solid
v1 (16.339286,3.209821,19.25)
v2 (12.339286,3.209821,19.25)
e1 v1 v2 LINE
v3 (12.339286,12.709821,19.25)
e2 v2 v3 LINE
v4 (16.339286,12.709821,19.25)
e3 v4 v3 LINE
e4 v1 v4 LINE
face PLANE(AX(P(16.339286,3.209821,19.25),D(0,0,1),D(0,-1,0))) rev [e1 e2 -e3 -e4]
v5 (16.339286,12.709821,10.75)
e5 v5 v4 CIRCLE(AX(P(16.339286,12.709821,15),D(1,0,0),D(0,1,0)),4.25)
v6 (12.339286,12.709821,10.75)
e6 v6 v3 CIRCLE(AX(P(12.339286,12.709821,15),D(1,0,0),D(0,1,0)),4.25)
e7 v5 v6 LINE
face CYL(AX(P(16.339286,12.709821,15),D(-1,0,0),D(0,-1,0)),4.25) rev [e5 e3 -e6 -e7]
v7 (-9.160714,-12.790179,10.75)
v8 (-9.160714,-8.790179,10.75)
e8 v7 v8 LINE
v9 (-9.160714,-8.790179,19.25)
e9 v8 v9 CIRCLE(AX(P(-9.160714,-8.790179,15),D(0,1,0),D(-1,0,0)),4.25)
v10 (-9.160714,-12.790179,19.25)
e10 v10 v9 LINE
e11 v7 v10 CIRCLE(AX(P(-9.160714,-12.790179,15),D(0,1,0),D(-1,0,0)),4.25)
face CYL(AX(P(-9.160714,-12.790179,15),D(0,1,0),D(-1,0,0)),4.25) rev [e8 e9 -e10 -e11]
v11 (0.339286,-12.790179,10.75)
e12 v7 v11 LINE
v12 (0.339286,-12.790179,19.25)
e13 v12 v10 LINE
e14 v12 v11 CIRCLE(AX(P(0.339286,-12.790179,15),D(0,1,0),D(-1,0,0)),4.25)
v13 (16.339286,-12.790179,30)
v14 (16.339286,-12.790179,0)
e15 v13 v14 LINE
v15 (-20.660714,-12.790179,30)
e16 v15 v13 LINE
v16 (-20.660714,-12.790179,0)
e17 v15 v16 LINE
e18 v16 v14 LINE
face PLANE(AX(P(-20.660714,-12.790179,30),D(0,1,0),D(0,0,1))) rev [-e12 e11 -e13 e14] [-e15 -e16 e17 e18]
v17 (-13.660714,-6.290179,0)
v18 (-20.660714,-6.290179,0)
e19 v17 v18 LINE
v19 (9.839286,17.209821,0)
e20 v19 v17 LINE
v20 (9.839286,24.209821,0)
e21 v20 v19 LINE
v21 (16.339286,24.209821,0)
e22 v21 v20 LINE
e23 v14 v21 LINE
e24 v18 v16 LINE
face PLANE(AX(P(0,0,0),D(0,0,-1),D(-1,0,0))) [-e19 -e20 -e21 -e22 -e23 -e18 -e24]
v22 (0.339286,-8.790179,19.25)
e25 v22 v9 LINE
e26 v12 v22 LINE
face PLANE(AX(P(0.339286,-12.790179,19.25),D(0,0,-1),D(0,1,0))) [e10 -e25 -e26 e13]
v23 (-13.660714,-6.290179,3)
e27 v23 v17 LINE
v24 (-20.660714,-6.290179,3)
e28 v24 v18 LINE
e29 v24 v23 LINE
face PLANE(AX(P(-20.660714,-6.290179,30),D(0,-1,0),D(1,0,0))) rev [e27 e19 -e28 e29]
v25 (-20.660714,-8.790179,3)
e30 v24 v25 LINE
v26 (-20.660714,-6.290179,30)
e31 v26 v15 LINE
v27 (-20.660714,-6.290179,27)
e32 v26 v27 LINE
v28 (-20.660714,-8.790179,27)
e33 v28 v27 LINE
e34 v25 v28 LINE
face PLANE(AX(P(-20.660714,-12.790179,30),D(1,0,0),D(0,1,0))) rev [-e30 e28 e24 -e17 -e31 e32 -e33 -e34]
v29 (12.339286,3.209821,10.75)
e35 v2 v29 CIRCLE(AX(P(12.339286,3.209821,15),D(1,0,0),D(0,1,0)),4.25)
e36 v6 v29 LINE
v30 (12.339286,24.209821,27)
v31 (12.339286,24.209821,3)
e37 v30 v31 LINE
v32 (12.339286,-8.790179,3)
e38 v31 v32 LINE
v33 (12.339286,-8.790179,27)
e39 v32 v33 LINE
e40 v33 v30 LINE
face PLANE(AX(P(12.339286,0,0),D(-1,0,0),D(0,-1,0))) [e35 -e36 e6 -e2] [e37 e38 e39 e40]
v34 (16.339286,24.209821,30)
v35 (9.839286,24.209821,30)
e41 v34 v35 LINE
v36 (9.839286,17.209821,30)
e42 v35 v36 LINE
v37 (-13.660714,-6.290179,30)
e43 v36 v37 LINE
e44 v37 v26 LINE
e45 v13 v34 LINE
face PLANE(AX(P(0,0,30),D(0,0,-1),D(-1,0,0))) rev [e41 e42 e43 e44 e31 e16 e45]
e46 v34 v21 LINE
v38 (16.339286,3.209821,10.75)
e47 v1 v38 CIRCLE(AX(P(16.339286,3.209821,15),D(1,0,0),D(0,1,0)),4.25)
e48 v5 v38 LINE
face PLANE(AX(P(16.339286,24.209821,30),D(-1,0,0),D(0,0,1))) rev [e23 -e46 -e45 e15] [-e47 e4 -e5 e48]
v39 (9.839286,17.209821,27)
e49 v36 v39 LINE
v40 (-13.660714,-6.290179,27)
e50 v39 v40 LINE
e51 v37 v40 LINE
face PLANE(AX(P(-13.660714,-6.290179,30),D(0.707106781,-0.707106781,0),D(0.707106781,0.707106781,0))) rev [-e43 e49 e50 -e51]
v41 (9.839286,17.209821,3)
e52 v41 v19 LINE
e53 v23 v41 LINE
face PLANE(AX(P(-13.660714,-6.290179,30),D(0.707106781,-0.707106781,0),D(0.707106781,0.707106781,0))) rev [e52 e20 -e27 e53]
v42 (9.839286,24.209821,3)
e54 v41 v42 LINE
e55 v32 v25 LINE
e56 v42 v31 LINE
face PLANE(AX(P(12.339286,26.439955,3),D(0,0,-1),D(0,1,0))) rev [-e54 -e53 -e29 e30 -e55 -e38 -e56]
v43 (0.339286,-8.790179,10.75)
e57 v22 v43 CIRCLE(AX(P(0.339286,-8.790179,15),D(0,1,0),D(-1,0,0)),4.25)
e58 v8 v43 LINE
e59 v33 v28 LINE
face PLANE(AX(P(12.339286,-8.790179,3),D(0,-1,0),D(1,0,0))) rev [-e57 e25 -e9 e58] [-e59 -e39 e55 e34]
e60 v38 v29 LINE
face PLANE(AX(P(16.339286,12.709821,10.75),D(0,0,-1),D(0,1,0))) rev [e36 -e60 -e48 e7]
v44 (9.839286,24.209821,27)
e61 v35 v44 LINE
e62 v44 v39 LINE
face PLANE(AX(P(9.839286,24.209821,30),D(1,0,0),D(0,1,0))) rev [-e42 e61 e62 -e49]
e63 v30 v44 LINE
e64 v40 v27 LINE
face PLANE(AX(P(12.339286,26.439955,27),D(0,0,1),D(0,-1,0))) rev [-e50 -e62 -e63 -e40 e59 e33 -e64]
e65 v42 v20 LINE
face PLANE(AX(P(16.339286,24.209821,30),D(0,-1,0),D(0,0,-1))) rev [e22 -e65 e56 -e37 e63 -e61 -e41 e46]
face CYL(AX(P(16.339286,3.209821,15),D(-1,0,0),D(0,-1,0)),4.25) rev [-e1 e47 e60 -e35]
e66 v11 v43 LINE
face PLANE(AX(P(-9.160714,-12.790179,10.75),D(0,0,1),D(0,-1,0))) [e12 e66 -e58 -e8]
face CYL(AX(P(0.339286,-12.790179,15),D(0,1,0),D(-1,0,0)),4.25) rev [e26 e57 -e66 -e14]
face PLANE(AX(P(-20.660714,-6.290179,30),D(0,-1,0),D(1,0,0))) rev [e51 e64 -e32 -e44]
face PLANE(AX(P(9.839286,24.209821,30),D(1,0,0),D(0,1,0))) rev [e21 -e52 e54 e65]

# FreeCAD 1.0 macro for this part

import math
import FreeCAD as App
import Part
import Sketcher
from FreeCAD import Vector

doc = App.newDocument("Part")
body = doc.addObject("PartDesign::Body", "Body")

# Sketch on XY plane
sketch1 = body.newObject("Sketcher::SketchObject", "Sketch")
sketch1.AttachmentSupport = (doc.getObject("XY_Plane"), [""])
sketch1.MapMode = "FlatFace"
sketch1.addGeometry([
    Part.LineSegment(Vector(16.339286, 24.209821, 0), Vector(9.839286, 24.209821, 0)),  # 0
    Part.LineSegment(Vector(9.839286, 24.209821, 0), Vector(9.839286, 17.209821, 0)),  # 1
    Part.LineSegment(Vector(9.839286, 17.209821, 0), Vector(-13.660714, -6.290179, 0)),  # 2
    Part.LineSegment(Vector(-13.660714, -6.290179, 0), Vector(-20.660714, -6.290179, 0)),  # 3
    Part.LineSegment(Vector(-20.660714, -6.290179, 0), Vector(-20.660714, -12.790179, 0)),  # 4
    Part.LineSegment(Vector(-20.660714, -12.790179, 0), Vector(16.339286, -12.790179, 0)),  # 5
    Part.LineSegment(Vector(16.339286, -12.790179, 0), Vector(16.339286, 24.209821, 0)),  # 6
], False)
sketch1.addConstraint([
    Sketcher.Constraint("Coincident", 0, 2, 1, 1),
    Sketcher.Constraint("Coincident", 1, 2, 2, 1),
    Sketcher.Constraint("Coincident", 2, 2, 3, 1),
    Sketcher.Constraint("Coincident", 3, 2, 4, 1),
    Sketcher.Constraint("Coincident", 4, 2, 5, 1),
    Sketcher.Constraint("Coincident", 5, 2, 6, 1),
    Sketcher.Constraint("Coincident", 6, 2, 0, 1),
    Sketcher.Constraint("Horizontal", 0),
    Sketcher.Constraint("Vertical", 1),
    Sketcher.Constraint("Horizontal", 3),
    Sketcher.Constraint("Vertical", 4),
    Sketcher.Constraint("Horizontal", 5),
    Sketcher.Constraint("Vertical", 6),
    Sketcher.Constraint("Equal", 3, 1),
    Sketcher.Constraint("Equal", 0, 4),
    Sketcher.Constraint("Equal", 5, 6),
    Sketcher.Constraint("DistanceX", 3, 2, 3, 1, 7.0),
    Sketcher.Constraint("DistanceX", 5, 1, 5, 2, 37.0),
    Sketcher.Constraint("DistanceX", 0, 2, 0, 1, 6.5),
    Sketcher.Constraint("DistanceY", -1, 1, 0, 2, 24.209821),
    Sketcher.Constraint("DistanceX", -1, 1, 0, 2, 9.839286),
])
pad1 = body.newObject("PartDesign::Pad", "Pad")
pad1.Profile = sketch1
pad1.Length = 30

# Sketch on YZ plane
sketch2 = body.newObject("Sketcher::SketchObject", "Sketch001")
sketch2.AttachmentSupport = (doc.getObject("YZ_Plane"), [""])
sketch2.MapMode = "FlatFace"
sketch2.AttachmentOffset = App.Placement(Vector(0, 0, -20.660714), App.Rotation())
sketch2.addGeometry([
    Part.LineSegment(Vector(26.439955, 3, 0), Vector(-8.790179, 3, 0)),
    Part.LineSegment(Vector(-8.790179, 3, 0), Vector(-8.790179, 27, 0)),
    Part.LineSegment(Vector(-8.790179, 27, 0), Vector(26.439955, 27, 0)),
    Part.LineSegment(Vector(26.439955, 27, 0), Vector(26.439955, 3, 0)),
], False)
sketch2.addConstraint([
    Sketcher.Constraint("Coincident", 0, 2, 1, 1),
    Sketcher.Constraint("Coincident", 1, 2, 2, 1),
    Sketcher.Constraint("Coincident", 2, 2, 3, 1),
    Sketcher.Constraint("Coincident", 3, 2, 0, 1),
    Sketcher.Constraint("Horizontal", 0),
    Sketcher.Constraint("Vertical", 1),
    Sketcher.Constraint("Horizontal", 2),
    Sketcher.Constraint("Vertical", 3),
    Sketcher.Constraint("DistanceY", 1, 1, 1, 2, 24.0),
    Sketcher.Constraint("DistanceY", -1, 1, 0, 2, 3.0),
    Sketcher.Constraint("DistanceX", 0, 2, 0, 1, 35.230133),
    Sketcher.Constraint("DistanceX", 0, 2, -1, 1, 8.790179),
])
pocket1 = body.newObject("PartDesign::Pocket", "Pocket")
pocket1.Profile = sketch2
pocket1.Length = 33
pocket1.Reversed = True

# Sketch on XZ plane
sketch3 = body.newObject("Sketcher::SketchObject", "Sketch002")
sketch3.AttachmentSupport = (doc.getObject("XZ_Plane"), [""])
sketch3.MapMode = "FlatFace"
sketch3.AttachmentOffset = App.Placement(Vector(0, 0, 8.790179), App.Rotation())
sketch3.addGeometry([
    Part.LineSegment(Vector(0.339286, 10.75, 0), Vector(-9.160714, 10.75, 0)),
    Part.ArcOfCircle(Part.Circle(Vector(-9.160714, 15, 0), Vector(0, 0, 1), 4.25), math.radians(90), math.radians(270)),
    Part.LineSegment(Vector(-9.160714, 19.25, 0), Vector(0.339286, 19.25, 0)),
    Part.ArcOfCircle(Part.Circle(Vector(0.339286, 15, 0), Vector(0, 0, 1), 4.25), math.radians(-90), math.radians(90)),
], False)
sketch3.addConstraint([
    Sketcher.Constraint("Tangent", 0, 2, 1, 2),
    Sketcher.Constraint("Tangent", 1, 1, 2, 1),
    Sketcher.Constraint("Tangent", 2, 2, 3, 2),
    Sketcher.Constraint("Tangent", 3, 1, 0, 1),
    Sketcher.Constraint("Horizontal", 0),
    Sketcher.Constraint("Horizontal", 2),
    Sketcher.Constraint("Radius", 1, 4.25),
    Sketcher.Constraint("DistanceX", 0, 2, 0, 1, 9.5),
    Sketcher.Constraint("DistanceY", -1, 1, 1, 3, 15.0),
    Sketcher.Constraint("DistanceX", 1, 3, -1, 1, 9.160714),
])
pocket2 = body.newObject("PartDesign::Pocket", "Pocket001")
pocket2.Profile = sketch3
pocket2.Type = "ThroughAll"
pocket2.Reversed = True
doc.recompute()

datumplane = body.newObject("PartDesign::Plane", "DatumPlane")
datumplane.Placement = App.Placement(Vector(1.774554, 1.774554, 0), App.Rotation(Vector(0.707106781, -0.707106781, 0), Vector(0, 0, -1), Vector(0.707106781, 0.707106781, 0), "ZXY"))
mirrored = body.newObject("PartDesign::Mirrored", "Mirrored")
mirrored.Originals = [pocket2]
mirrored.MirrorPlane = (datumplane, [""])
body.Tip = mirrored

doc.recompute()
